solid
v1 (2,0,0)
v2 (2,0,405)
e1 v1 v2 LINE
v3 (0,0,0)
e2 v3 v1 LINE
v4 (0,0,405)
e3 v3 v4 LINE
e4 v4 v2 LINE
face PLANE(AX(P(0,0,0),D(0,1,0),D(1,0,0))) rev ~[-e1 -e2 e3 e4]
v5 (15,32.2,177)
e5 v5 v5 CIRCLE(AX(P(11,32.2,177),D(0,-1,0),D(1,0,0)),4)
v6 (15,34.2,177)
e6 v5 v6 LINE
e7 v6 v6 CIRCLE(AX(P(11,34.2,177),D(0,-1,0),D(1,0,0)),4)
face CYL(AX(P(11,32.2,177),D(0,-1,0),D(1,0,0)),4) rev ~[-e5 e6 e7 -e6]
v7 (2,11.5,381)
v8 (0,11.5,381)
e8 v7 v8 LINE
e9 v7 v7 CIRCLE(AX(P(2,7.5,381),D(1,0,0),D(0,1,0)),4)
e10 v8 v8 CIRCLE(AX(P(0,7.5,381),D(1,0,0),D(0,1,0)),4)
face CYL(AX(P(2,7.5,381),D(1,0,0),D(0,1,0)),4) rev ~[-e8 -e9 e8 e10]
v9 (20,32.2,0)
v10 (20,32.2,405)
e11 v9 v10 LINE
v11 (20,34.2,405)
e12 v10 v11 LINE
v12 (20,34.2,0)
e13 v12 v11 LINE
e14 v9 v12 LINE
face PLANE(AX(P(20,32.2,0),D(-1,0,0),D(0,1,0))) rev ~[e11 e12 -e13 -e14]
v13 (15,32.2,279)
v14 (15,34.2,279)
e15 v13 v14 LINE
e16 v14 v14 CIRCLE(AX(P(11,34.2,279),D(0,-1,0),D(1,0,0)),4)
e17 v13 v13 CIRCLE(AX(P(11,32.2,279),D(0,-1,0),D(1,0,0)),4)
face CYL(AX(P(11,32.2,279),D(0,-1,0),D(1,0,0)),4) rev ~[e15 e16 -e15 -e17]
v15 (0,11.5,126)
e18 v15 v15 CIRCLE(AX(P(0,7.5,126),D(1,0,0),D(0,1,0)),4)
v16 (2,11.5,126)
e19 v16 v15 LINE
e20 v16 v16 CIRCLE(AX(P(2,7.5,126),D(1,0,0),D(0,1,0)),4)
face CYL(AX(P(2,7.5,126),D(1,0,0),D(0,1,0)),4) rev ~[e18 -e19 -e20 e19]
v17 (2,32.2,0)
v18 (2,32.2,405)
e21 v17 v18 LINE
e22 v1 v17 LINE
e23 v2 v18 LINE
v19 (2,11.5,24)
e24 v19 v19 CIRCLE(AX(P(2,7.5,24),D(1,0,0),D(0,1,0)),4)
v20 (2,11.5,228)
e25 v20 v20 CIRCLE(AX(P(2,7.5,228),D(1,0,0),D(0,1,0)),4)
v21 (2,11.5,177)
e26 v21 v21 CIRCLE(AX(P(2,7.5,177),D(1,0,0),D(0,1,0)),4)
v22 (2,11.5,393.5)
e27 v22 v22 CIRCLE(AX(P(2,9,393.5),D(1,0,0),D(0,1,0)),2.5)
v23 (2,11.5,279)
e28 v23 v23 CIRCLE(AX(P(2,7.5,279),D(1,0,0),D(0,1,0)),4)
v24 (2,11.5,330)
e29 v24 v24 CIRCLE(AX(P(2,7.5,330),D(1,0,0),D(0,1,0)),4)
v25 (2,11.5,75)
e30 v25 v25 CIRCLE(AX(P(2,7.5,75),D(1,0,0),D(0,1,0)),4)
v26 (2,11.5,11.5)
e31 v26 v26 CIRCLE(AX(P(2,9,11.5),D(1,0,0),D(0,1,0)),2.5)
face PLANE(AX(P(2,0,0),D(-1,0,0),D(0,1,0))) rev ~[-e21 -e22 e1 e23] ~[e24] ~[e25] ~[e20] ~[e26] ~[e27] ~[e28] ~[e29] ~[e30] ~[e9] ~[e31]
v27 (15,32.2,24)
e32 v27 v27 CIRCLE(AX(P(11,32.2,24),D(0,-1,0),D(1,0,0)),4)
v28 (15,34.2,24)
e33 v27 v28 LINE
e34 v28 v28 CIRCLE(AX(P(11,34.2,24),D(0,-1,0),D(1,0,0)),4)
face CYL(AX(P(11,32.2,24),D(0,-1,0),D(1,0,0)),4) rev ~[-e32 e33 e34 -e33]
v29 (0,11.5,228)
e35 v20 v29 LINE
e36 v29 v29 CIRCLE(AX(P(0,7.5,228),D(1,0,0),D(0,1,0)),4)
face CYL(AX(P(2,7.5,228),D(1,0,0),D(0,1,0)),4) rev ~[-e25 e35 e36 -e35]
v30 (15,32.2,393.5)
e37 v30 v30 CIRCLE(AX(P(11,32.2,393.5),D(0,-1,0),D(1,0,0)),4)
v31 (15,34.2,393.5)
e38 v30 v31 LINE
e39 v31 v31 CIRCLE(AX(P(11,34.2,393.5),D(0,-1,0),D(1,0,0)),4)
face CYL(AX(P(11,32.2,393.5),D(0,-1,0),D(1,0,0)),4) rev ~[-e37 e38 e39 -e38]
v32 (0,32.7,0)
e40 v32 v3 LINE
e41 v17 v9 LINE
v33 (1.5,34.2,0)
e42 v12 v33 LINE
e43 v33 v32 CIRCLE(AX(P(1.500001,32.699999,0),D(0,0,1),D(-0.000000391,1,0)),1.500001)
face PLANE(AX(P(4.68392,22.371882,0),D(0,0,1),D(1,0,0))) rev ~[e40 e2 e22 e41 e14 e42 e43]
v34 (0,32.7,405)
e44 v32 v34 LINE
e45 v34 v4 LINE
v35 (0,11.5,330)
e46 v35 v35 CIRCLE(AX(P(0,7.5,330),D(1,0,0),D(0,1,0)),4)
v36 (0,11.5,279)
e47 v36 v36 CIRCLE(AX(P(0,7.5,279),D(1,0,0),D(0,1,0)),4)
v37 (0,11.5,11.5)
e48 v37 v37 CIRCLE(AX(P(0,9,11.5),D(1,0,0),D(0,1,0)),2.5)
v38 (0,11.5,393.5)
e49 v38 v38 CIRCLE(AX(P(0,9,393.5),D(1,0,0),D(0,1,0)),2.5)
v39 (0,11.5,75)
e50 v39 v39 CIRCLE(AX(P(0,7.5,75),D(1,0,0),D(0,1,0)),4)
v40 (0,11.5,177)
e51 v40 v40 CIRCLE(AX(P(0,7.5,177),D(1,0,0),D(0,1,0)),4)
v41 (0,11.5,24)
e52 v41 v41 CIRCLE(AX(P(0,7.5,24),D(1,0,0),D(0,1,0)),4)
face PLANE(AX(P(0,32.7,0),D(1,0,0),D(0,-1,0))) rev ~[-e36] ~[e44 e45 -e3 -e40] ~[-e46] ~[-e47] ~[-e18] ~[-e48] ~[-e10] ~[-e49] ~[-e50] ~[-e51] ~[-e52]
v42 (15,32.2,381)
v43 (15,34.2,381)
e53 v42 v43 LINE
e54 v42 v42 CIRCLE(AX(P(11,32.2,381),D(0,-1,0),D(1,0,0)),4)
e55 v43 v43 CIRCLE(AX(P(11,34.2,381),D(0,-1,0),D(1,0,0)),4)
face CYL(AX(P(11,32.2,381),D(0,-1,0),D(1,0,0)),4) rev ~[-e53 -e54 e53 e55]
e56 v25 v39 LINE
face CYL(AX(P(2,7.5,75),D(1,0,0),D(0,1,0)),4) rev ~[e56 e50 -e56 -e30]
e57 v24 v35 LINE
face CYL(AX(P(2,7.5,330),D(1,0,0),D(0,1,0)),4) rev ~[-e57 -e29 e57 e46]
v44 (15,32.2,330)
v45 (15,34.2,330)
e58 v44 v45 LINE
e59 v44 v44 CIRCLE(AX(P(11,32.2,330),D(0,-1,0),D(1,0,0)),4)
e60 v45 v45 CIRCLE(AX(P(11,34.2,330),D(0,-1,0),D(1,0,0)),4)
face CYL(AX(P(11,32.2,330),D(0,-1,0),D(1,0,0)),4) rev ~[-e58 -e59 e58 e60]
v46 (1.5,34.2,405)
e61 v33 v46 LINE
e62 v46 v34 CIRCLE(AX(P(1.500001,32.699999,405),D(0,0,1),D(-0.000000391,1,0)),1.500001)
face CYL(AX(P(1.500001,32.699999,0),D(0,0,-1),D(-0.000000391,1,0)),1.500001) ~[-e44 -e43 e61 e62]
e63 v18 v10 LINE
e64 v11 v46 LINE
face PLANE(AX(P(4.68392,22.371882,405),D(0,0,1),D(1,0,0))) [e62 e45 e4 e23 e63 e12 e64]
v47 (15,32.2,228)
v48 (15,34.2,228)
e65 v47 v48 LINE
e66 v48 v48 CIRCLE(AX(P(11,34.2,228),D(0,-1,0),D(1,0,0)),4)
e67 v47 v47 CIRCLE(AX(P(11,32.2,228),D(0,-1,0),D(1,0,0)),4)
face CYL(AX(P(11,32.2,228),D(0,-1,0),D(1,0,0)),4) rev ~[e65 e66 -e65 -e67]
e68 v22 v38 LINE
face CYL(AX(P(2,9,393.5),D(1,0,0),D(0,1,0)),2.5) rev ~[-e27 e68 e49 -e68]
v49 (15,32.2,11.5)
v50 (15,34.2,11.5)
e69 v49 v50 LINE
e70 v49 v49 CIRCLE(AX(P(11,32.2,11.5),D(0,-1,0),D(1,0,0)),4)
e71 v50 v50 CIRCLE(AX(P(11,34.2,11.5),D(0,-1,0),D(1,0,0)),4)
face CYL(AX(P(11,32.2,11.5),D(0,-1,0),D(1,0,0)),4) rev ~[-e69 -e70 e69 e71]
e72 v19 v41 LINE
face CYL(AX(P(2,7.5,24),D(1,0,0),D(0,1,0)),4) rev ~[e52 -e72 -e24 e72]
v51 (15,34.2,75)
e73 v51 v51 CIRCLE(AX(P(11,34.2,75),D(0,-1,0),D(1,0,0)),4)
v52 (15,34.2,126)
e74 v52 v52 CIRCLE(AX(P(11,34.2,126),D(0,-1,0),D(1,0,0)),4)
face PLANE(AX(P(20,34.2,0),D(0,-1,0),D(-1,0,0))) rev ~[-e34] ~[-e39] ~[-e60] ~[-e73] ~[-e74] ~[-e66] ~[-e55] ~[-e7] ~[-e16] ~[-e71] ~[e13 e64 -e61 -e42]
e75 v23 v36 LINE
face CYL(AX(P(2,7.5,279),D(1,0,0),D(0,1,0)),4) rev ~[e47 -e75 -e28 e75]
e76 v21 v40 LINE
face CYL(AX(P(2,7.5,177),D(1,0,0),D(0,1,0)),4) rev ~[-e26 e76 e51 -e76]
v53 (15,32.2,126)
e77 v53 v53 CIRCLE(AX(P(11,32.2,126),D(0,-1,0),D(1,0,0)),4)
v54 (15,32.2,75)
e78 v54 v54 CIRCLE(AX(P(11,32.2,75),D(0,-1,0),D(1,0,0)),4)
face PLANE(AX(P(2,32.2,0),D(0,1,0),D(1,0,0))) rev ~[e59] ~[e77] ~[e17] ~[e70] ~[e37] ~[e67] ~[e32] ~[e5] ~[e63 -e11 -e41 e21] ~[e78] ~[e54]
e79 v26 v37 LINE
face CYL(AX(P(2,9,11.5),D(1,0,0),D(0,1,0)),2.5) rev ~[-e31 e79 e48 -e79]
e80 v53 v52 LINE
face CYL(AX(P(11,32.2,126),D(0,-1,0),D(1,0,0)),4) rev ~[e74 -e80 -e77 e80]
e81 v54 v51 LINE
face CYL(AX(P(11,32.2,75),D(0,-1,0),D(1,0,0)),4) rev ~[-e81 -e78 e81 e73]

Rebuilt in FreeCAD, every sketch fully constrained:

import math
import FreeCAD as App
import Part
import Sketcher

doc = App.newDocument("Part")
body = doc.addObject("PartDesign::Body", "Body")

# Sketch on XY plane
sketch1 = body.newObject("Sketcher::SketchObject", "Sketch")
sketch1.AttachmentSupport = (doc.getObject("XY_Plane"), [""])
sketch1.MapMode = "FlatFace"
sketch1.addGeometry([
    Part.LineSegment(App.Vector(0, 32.7, 0), App.Vector(0, 0, 0)),  # 0
    Part.LineSegment(App.Vector(0, 0, 0), App.Vector(2, 0, 0)),  # 1
    Part.LineSegment(App.Vector(2, 0, 0), App.Vector(2, 32.2, 0)),  # 2
    Part.LineSegment(App.Vector(2, 32.2, 0), App.Vector(20, 32.2, 0)),  # 3
    Part.LineSegment(App.Vector(20, 32.2, 0), App.Vector(20, 34.2, 0)),  # 4
    Part.LineSegment(App.Vector(20, 34.2, 0), App.Vector(1.5, 34.2, 0)),  # 5
    Part.ArcOfCircle(Part.Circle(App.Vector(1.5, 32.7, 0), App.Vector(0, 0, 1), 1.5), math.radians(90), math.radians(180)),  # 6
], False)
sketch1.addConstraint([
    Sketcher.Constraint("Coincident", 0, 2, 1, 1),
    Sketcher.Constraint("Coincident", 1, 2, 2, 1),
    Sketcher.Constraint("Coincident", 2, 2, 3, 1),
    Sketcher.Constraint("Coincident", 3, 2, 4, 1),
    Sketcher.Constraint("Coincident", 4, 2, 5, 1),
    Sketcher.Constraint("Tangent", 5, 2, 6, 1),
    Sketcher.Constraint("Tangent", 6, 2, 0, 1),
    Sketcher.Constraint("Vertical", 0),
    Sketcher.Constraint("Horizontal", 1),
    Sketcher.Constraint("Vertical", 2),
    Sketcher.Constraint("Horizontal", 3),
    Sketcher.Constraint("Vertical", 4),
    Sketcher.Constraint("Horizontal", 5),
    Sketcher.Constraint("Coincident", 0, 2, -1, 1),
    Sketcher.Constraint("Equal", 1, 4),
    Sketcher.Constraint("Radius", 6, 1.500001),
    Sketcher.Constraint("DistanceX", 1, 1, 1, 2, 2.0),
    Sketcher.Constraint("DistanceX", 3, 1, 3, 2, 18.0),
    Sketcher.Constraint("DistanceY", 0, 2, 0, 1, 32.7),
])
pad1 = body.newObject("PartDesign::Pad", "Pad")
pad1.Profile = sketch1
pad1.Length = 405

# Sketch on YZ plane
sketch2 = body.newObject("Sketcher::SketchObject", "Sketch001")
sketch2.AttachmentSupport = (doc.getObject("YZ_Plane"), [""])
sketch2.MapMode = "FlatFace"
sketch2.AttachmentOffset = App.Placement(App.Vector(0, 0, 2), App.Rotation())
sketch2.addGeometry([
    Part.Circle(App.Vector(9, 393.5, 0), App.Vector(0, 0, 1), 2.5),  # 0
    Part.Circle(App.Vector(7.5, 381, 0), App.Vector(0, 0, 1), 4),  # 1
    Part.Circle(App.Vector(7.5, 330, 0), App.Vector(0, 0, 1), 4),  # 2
    Part.Circle(App.Vector(7.5, 279, 0), App.Vector(0, 0, 1), 4),  # 3
    Part.Circle(App.Vector(7.5, 228, 0), App.Vector(0, 0, 1), 4),  # 4
    Part.Circle(App.Vector(7.5, 177, 0), App.Vector(0, 0, 1), 4),  # 5
    Part.Circle(App.Vector(7.5, 126, 0), App.Vector(0, 0, 1), 4),  # 6
    Part.Circle(App.Vector(7.5, 75, 0), App.Vector(0, 0, 1), 4),  # 7
    Part.Circle(App.Vector(7.5, 24, 0), App.Vector(0, 0, 1), 4),  # 8
    Part.Circle(App.Vector(9, 11.5, 0), App.Vector(0, 0, 1), 2.5),  # 9
], False)
sketch2.addConstraint([
    Sketcher.Constraint("Equal", 1, 2),
    Sketcher.Constraint("Equal", 2, 3),
    Sketcher.Constraint("Equal", 3, 4),
    Sketcher.Constraint("Equal", 4, 5),
    Sketcher.Constraint("Equal", 5, 6),
    Sketcher.Constraint("Equal", 6, 7),
    Sketcher.Constraint("Equal", 7, 8),
    Sketcher.Constraint("Equal", 0, 9),
    Sketcher.Constraint("Vertical", 1, 3, 2, 3),
    Sketcher.Constraint("Vertical", 2, 3, 3, 3),
    Sketcher.Constraint("Vertical", 3, 3, 4, 3),
    Sketcher.Constraint("Vertical", 4, 3, 5, 3),
    Sketcher.Constraint("Vertical", 5, 3, 6, 3),
    Sketcher.Constraint("Vertical", 6, 3, 7, 3),
    Sketcher.Constraint("Vertical", 7, 3, 8, 3),
    Sketcher.Constraint("Vertical", 0, 3, 9, 3),
    Sketcher.Constraint("Diameter", 0, 5.0),
    Sketcher.Constraint("Diameter", 1, 8.0),
    Sketcher.Constraint("DistanceX", -1, 1, 0, 3, 9.0),
    Sketcher.Constraint("DistanceY", -1, 1, 1, 3, 381.0),
    Sketcher.Constraint("DistanceY", -1, 1, 2, 3, 330.0),
    Sketcher.Constraint("DistanceY", -1, 1, 3, 3, 279.0),
    Sketcher.Constraint("DistanceY", -1, 1, 4, 3, 228.0),
    Sketcher.Constraint("DistanceY", -1, 1, 5, 3, 177.0),
    Sketcher.Constraint("DistanceY", -1, 1, 6, 3, 126.0),
    Sketcher.Constraint("DistanceY", -1, 1, 7, 3, 75.0),
    Sketcher.Constraint("DistanceY", -1, 1, 8, 3, 24.0),
    Sketcher.Constraint("DistanceY", -1, 1, 0, 3, 393.5),
    Sketcher.Constraint("DistanceX", -1, 1, 1, 3, 7.5),
    Sketcher.Constraint("DistanceY", -1, 1, 9, 3, 11.5),
])
pocket1 = body.newObject("PartDesign::Pocket", "Pocket")
pocket1.Profile = sketch2
pocket1.Type = "ThroughAll"

# Sketch on XZ plane
sketch3 = body.newObject("Sketcher::SketchObject", "Sketch002")
sketch3.AttachmentSupport = (doc.getObject("XZ_Plane"), [""])
sketch3.MapMode = "FlatFace"
sketch3.AttachmentOffset = App.Placement(App.Vector(0, 0, -32.2), App.Rotation())
sketch3.addGeometry([
    Part.Circle(App.Vector(11, 393.5, 0), App.Vector(0, 0, 1), 4),  # 0
    Part.Circle(App.Vector(11, 381, 0), App.Vector(0, 0, 1), 4),  # 1
    Part.Circle(App.Vector(11, 330, 0), App.Vector(0, 0, 1), 4),  # 2
    Part.Circle(App.Vector(11, 279, 0), App.Vector(0, 0, 1), 4),  # 3
    Part.Circle(App.Vector(11, 228, 0), App.Vector(0, 0, 1), 4),  # 4
    Part.Circle(App.Vector(11, 177, 0), App.Vector(0, 0, 1), 4),  # 5
    Part.Circle(App.Vector(11, 126, 0), App.Vector(0, 0, 1), 4),  # 6
    Part.Circle(App.Vector(11, 75, 0), App.Vector(0, 0, 1), 4),  # 7
    Part.Circle(App.Vector(11, 11.5, 0), App.Vector(0, 0, 1), 4),  # 8
    Part.Circle(App.Vector(11, 24, 0), App.Vector(0, 0, 1), 4),  # 9
], False)
sketch3.addConstraint([
    Sketcher.Constraint("Equal", 0, 1),
    Sketcher.Constraint("Equal", 1, 2),
    Sketcher.Constraint("Equal", 2, 3),
    Sketcher.Constraint("Equal", 3, 4),
    Sketcher.Constraint("Equal", 4, 5),
    Sketcher.Constraint("Equal", 5, 6),
    Sketcher.Constraint("Equal", 6, 7),
    Sketcher.Constraint("Equal", 7, 8),
    Sketcher.Constraint("Equal", 8, 9),
    Sketcher.Constraint("Vertical", 0, 3, 1, 3),
    Sketcher.Constraint("Vertical", 1, 3, 2, 3),
    Sketcher.Constraint("Vertical", 2, 3, 3, 3),
    Sketcher.Constraint("Vertical", 3, 3, 4, 3),
    Sketcher.Constraint("Vertical", 4, 3, 5, 3),
    Sketcher.Constraint("Vertical", 5, 3, 6, 3),
    Sketcher.Constraint("Vertical", 6, 3, 7, 3),
    Sketcher.Constraint("Vertical", 7, 3, 8, 3),
    Sketcher.Constraint("Vertical", 8, 3, 9, 3),
    Sketcher.Constraint("Diameter", 0, 8.0),
    Sketcher.Constraint("DistanceX", -1, 1, 0, 3, 11.0),
    Sketcher.Constraint("DistanceY", -1, 1, 1, 3, 381.0),
    Sketcher.Constraint("DistanceY", -1, 1, 2, 3, 330.0),
    Sketcher.Constraint("DistanceY", -1, 1, 3, 3, 279.0),
    Sketcher.Constraint("DistanceY", -1, 1, 4, 3, 228.0),
    Sketcher.Constraint("DistanceY", -1, 1, 5, 3, 177.0),
    Sketcher.Constraint("DistanceY", -1, 1, 6, 3, 126.0),
    Sketcher.Constraint("DistanceY", -1, 1, 7, 3, 75.0),
    Sketcher.Constraint("DistanceY", -1, 1, 9, 3, 24.0),
    Sketcher.Constraint("DistanceY", -1, 1, 0, 3, 393.5),
    Sketcher.Constraint("DistanceY", -1, 1, 8, 3, 11.5),
])
pocket2 = body.newObject("PartDesign::Pocket", "Pocket001")
pocket2.Profile = sketch3
pocket2.Type = "ThroughAll"

doc.recompute()
